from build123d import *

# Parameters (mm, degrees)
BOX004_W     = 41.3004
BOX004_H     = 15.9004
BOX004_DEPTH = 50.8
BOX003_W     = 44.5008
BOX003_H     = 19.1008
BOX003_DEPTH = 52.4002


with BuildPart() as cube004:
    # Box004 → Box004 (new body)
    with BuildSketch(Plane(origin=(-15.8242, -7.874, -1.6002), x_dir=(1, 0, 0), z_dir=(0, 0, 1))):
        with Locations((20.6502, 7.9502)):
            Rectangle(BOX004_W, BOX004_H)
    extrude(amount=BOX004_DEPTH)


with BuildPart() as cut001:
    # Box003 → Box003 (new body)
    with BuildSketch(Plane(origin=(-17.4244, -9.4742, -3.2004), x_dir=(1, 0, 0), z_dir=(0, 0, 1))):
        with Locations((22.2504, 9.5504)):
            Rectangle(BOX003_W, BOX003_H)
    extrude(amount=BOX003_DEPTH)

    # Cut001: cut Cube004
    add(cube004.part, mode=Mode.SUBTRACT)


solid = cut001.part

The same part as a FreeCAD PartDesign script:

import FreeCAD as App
import Part
import Sketcher

V = App.Vector
Q = App.Units.Quantity


def add_polygon(sketch, points):
    """Adds a closed chain of lines whose ends are joined by coincident constraints."""
    first, n = sketch.GeometryCount, len(points)
    for a, b in zip(points, points[1:] + points[:1]):
        sketch.addGeometry(Part.LineSegment(App.Vector(*a, 0), App.Vector(*b, 0)), False)
    for i in range(n):
        sketch.addConstraint(Sketcher.Constraint("Coincident", first + i, 2, first + (i + 1) % n, 1))

doc = App.newDocument("Part")
params = doc.addObject("Spreadsheet::Sheet", "Params")
for row, (alias, value) in enumerate([
    ("sketch1_width", "1.626 in"),
    ("sketch1_height", "0.626 in"),
    ("pad1_length", "2 in"),
    ("sketch2_width", "1.752 in"),
    ("sketch2_height", "0.752 in"),
    ("pad2_length", "2.063 in"),
], start=1):
    params.set(f"A{row}", alias)
    params.set(f"B{row}", "=" + value)
    params.setAlias(f"B{row}", alias)

body = doc.addObject("PartDesign::Body", "Body")

# Sketch on XY plane
sketch1 = body.newObject("Sketcher::SketchObject", "Sketch")
sketch1.AttachmentSupport = (doc.getObject("XY_Plane"), [""])
sketch1.MapMode = "FlatFace"
sketch1.AttachmentOffset = App.Placement(V(0, 0, -0.063 * 25.4), App.Rotation())
add_polygon(sketch1, [(-16, 8), (-16, -8), (25, -8), (25, 8)])  # lines 0-3
sketch1.addConstraint(Sketcher.Constraint("Vertical", 0))
sketch1.addConstraint(Sketcher.Constraint("Horizontal", 1))
sketch1.addConstraint(Sketcher.Constraint("Vertical", 2))
sketch1.addConstraint(Sketcher.Constraint("Horizontal", 3))
sketch1.addConstraint(Sketcher.Constraint("DistanceX", 1, 1, 1, 2, Q("1.626 in")))
sketch1.addConstraint(Sketcher.Constraint("DistanceY", 0, 2, 0, 1, Q("0.626 in")))
sketch1.addConstraint(Sketcher.Constraint("DistanceY", 0, 2, -1, 1, Q("0.31 in")))
sketch1.addConstraint(Sketcher.Constraint("DistanceX", 0, 2, -1, 1, Q("0.623 in")))
sketch1.setExpression("Constraints[8]", "Params.sketch1_width")
sketch1.setExpression("Constraints[9]", "Params.sketch1_height")
pad1 = body.newObject("PartDesign::Pad", "Pad")
pad1.Profile = sketch1
pad1.setExpression("Length", "Params.pad1_length")
body2 = doc.addObject("PartDesign::Body", "Body001")

# Sketch on XY plane
sketch2 = body2.newObject("Sketcher::SketchObject", "Sketch001")
sketch2.AttachmentSupport = (doc.getObject("XY_Plane001"), [""])
sketch2.MapMode = "FlatFace"
sketch2.AttachmentOffset = App.Placement(V(0, 0, -0.126 * 25.4), App.Rotation())
add_polygon(sketch2, [(-17, 10), (-17, -9), (27, -9), (27, 10)])  # lines 0-3
sketch2.addConstraint(Sketcher.Constraint("Vertical", 0))
sketch2.addConstraint(Sketcher.Constraint("Horizontal", 1))
sketch2.addConstraint(Sketcher.Constraint("Vertical", 2))
sketch2.addConstraint(Sketcher.Constraint("Horizontal", 3))
sketch2.addConstraint(Sketcher.Constraint("DistanceX", 1, 1, 1, 2, Q("1.752 in")))
sketch2.addConstraint(Sketcher.Constraint("DistanceY", 0, 2, 0, 1, Q("0.752 in")))
sketch2.addConstraint(Sketcher.Constraint("DistanceX", 0, 2, -1, 1, Q("0.686 in")))
sketch2.addConstraint(Sketcher.Constraint("DistanceY", 0, 2, -1, 1, Q("0.373 in")))
sketch2.setExpression("Constraints[8]", "Params.sketch2_width")
sketch2.setExpression("Constraints[9]", "Params.sketch2_height")
pad2 = body2.newObject("PartDesign::Pad", "Pad001")
pad2.Profile = sketch2
pad2.setExpression("Length", "Params.pad2_length")
doc.recompute()

boolean = body2.newObject("PartDesign::Boolean", "Boolean")
boolean.Type = "Cut"
boolean.addObjects([body])

doc.recompute()
